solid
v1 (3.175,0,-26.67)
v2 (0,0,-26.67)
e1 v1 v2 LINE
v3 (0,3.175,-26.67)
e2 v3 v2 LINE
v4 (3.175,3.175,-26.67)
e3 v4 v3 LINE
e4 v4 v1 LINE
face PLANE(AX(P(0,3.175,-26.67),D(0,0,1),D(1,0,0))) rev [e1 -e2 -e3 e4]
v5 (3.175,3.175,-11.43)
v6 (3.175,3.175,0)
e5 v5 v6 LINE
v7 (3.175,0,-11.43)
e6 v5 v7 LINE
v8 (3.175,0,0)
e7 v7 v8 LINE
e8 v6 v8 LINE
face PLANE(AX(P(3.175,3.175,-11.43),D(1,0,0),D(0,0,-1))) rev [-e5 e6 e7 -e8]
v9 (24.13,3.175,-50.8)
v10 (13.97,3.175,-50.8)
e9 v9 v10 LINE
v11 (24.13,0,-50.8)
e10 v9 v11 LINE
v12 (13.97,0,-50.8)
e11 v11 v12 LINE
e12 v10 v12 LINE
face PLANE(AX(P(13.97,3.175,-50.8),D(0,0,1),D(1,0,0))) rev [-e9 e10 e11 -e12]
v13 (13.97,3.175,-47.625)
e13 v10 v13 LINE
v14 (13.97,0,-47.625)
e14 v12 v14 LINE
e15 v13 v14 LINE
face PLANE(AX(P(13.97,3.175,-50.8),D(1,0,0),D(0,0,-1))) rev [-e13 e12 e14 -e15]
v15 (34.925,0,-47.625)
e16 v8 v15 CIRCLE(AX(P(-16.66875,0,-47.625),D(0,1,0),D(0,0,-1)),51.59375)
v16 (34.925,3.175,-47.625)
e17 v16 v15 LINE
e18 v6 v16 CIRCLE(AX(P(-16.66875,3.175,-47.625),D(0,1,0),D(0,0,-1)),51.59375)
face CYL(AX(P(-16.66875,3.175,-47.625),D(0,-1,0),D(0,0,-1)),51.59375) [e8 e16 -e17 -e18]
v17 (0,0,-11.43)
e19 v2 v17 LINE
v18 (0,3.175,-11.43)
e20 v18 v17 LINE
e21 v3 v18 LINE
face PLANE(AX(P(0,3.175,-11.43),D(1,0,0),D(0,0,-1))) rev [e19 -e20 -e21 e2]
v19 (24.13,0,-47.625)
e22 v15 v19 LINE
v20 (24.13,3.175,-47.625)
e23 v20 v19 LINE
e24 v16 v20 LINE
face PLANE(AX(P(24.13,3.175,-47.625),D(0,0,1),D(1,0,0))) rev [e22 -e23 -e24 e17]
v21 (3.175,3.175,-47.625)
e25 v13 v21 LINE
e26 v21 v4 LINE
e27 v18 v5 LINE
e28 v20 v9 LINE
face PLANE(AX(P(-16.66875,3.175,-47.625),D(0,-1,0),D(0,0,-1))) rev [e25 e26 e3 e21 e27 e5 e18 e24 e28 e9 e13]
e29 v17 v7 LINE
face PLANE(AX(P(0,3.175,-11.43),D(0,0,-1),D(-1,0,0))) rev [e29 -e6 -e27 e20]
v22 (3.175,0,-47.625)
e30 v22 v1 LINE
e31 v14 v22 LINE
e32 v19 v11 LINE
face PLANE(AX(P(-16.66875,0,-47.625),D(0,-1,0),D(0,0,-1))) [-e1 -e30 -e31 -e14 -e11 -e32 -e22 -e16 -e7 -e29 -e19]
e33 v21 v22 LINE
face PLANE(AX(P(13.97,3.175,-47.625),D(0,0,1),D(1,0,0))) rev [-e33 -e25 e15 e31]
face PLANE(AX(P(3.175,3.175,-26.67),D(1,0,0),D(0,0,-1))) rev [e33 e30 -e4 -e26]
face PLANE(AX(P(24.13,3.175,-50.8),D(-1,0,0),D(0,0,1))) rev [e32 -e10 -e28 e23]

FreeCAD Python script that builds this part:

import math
import FreeCAD as App
import Part
import Sketcher

V = App.Vector
Q = App.Units.Quantity

doc = App.newDocument("Part")
params = doc.addObject("Spreadsheet::Sheet", "Params")
for row, (alias, value) in enumerate([
    ("sketch1_width", "0.4 in"),
    ("sketch1_height", "0.6 in"),
    ("sketch1_radius", "2.03125 in"),
    ("sketch1_height2", "0.45 in"),
    ("sketch1_width2", "0.125 in"),
    ("pad1_length", "0.125 in"),
], start=1):
    params.set(f"A{row}", alias)
    params.set(f"B{row}", "=" + value)
    params.setAlias(f"B{row}", alias)

body = doc.addObject("PartDesign::Body", "Body")

sketch1 = doc.addObject("Sketcher::SketchObject", "Sketch")
body.addObject(sketch1)
sketch1.AttachmentSupport = (doc.XZ_Plane, [""])
sketch1.MapMode = "FlatFace"
sketch1.addGeometry(Part.LineSegment(V(3.2, -26.7, 0), V(0, -26.7, 0)), False)
sketch1.addGeometry(Part.LineSegment(V(0, -26.7, 0), V(0, -11.4, 0)), False)
sketch1.addGeometry(Part.LineSegment(V(0, -11.4, 0), V(3.2, -11.4, 0)), False)
sketch1.addGeometry(Part.LineSegment(V(3.2, -11.4, 0), V(3.2, 0, 0)), False)
sketch1.addGeometry(Part.ArcOfCircle(Part.Circle(V(-16.7, -47.6, 0), V(0, 0, 1), 51.6), math.radians(0), math.radians(67)), False)
sketch1.addGeometry(Part.LineSegment(V(34.9, -47.6, 0), V(24.1, -47.6, 0)), False)
sketch1.addGeometry(Part.LineSegment(V(24.1, -47.6, 0), V(24.1, -50.8, 0)), False)
sketch1.addGeometry(Part.LineSegment(V(24.1, -50.8, 0), V(14, -50.8, 0)), False)
sketch1.addGeometry(Part.LineSegment(V(14, -50.8, 0), V(14, -47.6, 0)), False)
sketch1.addGeometry(Part.LineSegment(V(14, -47.6, 0), V(3.2, -47.6, 0)), False)
sketch1.addGeometry(Part.LineSegment(V(3.2, -47.6, 0), V(3.2, -26.7, 0)), False)
sketch1.addConstraint(Sketcher.Constraint("Coincident", 0, 2, 1, 1))
sketch1.addConstraint(Sketcher.Constraint("Coincident", 1, 2, 2, 1))
sketch1.addConstraint(Sketcher.Constraint("Coincident", 2, 2, 3, 1))
sketch1.addConstraint(Sketcher.Constraint("Coincident", 3, 2, 4, 2))
sketch1.addConstraint(Sketcher.Constraint("Coincident", 4, 1, 5, 1))
sketch1.addConstraint(Sketcher.Constraint("Coincident", 5, 2, 6, 1))
sketch1.addConstraint(Sketcher.Constraint("Coincident", 6, 2, 7, 1))
sketch1.addConstraint(Sketcher.Constraint("Coincident", 7, 2, 8, 1))
sketch1.addConstraint(Sketcher.Constraint("Coincident", 8, 2, 9, 1))
sketch1.addConstraint(Sketcher.Constraint("Coincident", 9, 2, 10, 1))
sketch1.addConstraint(Sketcher.Constraint("Coincident", 10, 2, 0, 1))
sketch1.addConstraint(Sketcher.Constraint("Horizontal", 0))
sketch1.addConstraint(Sketcher.Constraint("Vertical", 1))
sketch1.addConstraint(Sketcher.Constraint("Horizontal", 2))
sketch1.addConstraint(Sketcher.Constraint("Vertical", 3))
sketch1.addConstraint(Sketcher.Constraint("Horizontal", 5))
sketch1.addConstraint(Sketcher.Constraint("Vertical", 6))
sketch1.addConstraint(Sketcher.Constraint("Horizontal", 7))
sketch1.addConstraint(Sketcher.Constraint("Vertical", 8))
sketch1.addConstraint(Sketcher.Constraint("Horizontal", 9))
sketch1.addConstraint(Sketcher.Constraint("Vertical", 10))
sketch1.addConstraint(Sketcher.Constraint("PointOnObject", 0, 2, -2))
sketch1.addConstraint(Sketcher.Constraint("PointOnObject", 3, 2, -1))
sketch1.addConstraint(Sketcher.Constraint("Horizontal", 5, 2, 8, 2))
sketch1.addConstraint(Sketcher.Constraint("Vertical", 3, 2, 9, 2))
sketch1.addConstraint(Sketcher.Constraint("Equal", 5, 9))
sketch1.addConstraint(Sketcher.Constraint("Equal", 2, 6))
sketch1.addConstraint(Sketcher.Constraint("DistanceX", 7, 2, 7, 1, Q("0.4 in")))
sketch1.addConstraint(Sketcher.Constraint("DistanceY", 1, 1, 1, 2, Q("0.6 in")))
sketch1.addConstraint(Sketcher.Constraint("DistanceY", 6, 2, -1, 1, Q("2 in")))
sketch1.addConstraint(Sketcher.Constraint("Radius", 4, Q("2.03125 in")))
sketch1.addConstraint(Sketcher.Constraint("DistanceY", 3, 1, 3, 2, Q("0.45 in")))
sketch1.addConstraint(Sketcher.Constraint("DistanceX", 0, 2, 0, 1, Q("0.125 in")))
sketch1.addConstraint(Sketcher.Constraint("DistanceX", 5, 2, 5, 1, Q("0.425 in")))
sketch1.setExpression("Constraints[27]", "Params.sketch1_width")
sketch1.setExpression("Constraints[28]", "Params.sketch1_height")
sketch1.setExpression("Constraints[30]", "Params.sketch1_radius")
sketch1.setExpression("Constraints[31]", "Params.sketch1_height2")
sketch1.setExpression("Constraints[32]", "Params.sketch1_width2")
pad1 = doc.addObject("PartDesign::Pad", "Pad")
body.addObject(pad1)
pad1.Profile = sketch1
pad1.setExpression("Length", "Params.pad1_length")
pad1.Reversed = True

doc.recompute()
